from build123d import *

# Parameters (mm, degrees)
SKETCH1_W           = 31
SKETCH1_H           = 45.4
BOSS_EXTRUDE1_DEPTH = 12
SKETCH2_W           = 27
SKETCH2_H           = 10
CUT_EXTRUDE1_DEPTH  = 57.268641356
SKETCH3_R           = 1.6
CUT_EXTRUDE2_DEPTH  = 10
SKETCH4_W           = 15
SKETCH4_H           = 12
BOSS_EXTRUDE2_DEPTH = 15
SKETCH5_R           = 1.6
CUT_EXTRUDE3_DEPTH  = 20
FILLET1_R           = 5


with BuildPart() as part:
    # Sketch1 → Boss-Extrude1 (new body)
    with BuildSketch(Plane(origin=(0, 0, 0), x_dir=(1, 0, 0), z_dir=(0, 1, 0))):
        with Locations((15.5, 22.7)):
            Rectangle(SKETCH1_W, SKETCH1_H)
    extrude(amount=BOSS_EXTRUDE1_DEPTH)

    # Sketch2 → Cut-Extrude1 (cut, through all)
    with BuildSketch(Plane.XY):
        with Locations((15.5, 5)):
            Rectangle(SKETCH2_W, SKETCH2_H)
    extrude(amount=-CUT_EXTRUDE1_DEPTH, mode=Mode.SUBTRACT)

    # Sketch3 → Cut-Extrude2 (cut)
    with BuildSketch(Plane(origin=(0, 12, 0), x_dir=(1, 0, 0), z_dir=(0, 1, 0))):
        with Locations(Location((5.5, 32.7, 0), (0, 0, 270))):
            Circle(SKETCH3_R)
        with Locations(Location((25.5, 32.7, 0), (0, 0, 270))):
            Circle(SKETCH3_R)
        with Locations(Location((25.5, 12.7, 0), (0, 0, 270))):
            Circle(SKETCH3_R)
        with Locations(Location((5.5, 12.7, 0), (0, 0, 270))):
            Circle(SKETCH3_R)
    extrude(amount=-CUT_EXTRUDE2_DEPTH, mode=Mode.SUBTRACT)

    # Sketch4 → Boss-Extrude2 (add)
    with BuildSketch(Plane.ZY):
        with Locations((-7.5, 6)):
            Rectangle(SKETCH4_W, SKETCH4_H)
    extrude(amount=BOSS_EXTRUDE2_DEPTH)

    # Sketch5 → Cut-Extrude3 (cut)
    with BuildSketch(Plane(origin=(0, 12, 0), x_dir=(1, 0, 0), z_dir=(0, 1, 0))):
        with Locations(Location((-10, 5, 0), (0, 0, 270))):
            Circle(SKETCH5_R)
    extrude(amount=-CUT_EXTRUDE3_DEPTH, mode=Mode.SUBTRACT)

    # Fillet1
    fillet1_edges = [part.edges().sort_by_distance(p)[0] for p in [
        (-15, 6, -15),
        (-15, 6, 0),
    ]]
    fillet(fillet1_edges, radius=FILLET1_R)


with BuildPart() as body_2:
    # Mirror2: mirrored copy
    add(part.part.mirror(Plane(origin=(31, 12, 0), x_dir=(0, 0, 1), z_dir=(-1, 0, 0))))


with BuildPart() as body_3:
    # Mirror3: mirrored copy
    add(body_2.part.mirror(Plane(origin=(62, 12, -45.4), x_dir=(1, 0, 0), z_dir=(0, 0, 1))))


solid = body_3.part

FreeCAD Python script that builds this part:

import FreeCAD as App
import Part
import Sketcher
Q = App.Units.Quantity


def edges_at(feature, points):
    """Names of the edges that pass closest to the given points."""
    edges = feature.Shape.Edges
    near = lambda p: min(range(len(edges)), key=lambda i: edges[i].distToShape(Part.Vertex(*p))[0])
    return sorted({f"Edge{near(p) + 1}" for p in points})


def add_polygon(sketch, points):
    """Adds a closed chain of lines whose ends are joined by coincident constraints."""
    first, n = sketch.GeometryCount, len(points)
    for a, b in zip(points, points[1:] + points[:1]):
        sketch.addGeometry(Part.LineSegment(App.Vector(*a, 0), App.Vector(*b, 0)), False)
    for i in range(n):
        sketch.addConstraint(Sketcher.Constraint("Coincident", first + i, 2, first + (i + 1) % n, 1))

doc = App.newDocument("Part")
body = doc.addObject("PartDesign::Body", "Body")

# Sketch on XZ plane
sketch1 = body.newObject("Sketcher::SketchObject", "Sketch")
sketch1.AttachmentSupport = (doc.getObject("XZ_Plane"), [""])
sketch1.MapMode = "FlatFace"
add_polygon(sketch1, [(0, -45), (0, 0), (31, 0), (31, -45)])  # lines 0-3
sketch1.addConstraint(Sketcher.Constraint("Vertical", 0))
sketch1.addConstraint(Sketcher.Constraint("Horizontal", 1))
sketch1.addConstraint(Sketcher.Constraint("Vertical", 2))
sketch1.addConstraint(Sketcher.Constraint("Horizontal", 3))
sketch1.addConstraint(Sketcher.Constraint("Coincident", 0, 2, -1, 1))
sketch1.addConstraint(Sketcher.Constraint("DistanceX", 1, 1, 1, 2, Q("31 mm")))
sketch1.addConstraint(Sketcher.Constraint("DistanceY", 0, 1, 0, 2, Q("45.4 mm")))
pad1 = body.newObject("PartDesign::Pad", "Pad")
pad1.Profile = sketch1
pad1.Length = 12
pad1.Reversed = True

# Sketch on XY plane
sketch2 = body.newObject("Sketcher::SketchObject", "Sketch001")
sketch2.AttachmentSupport = (doc.getObject("XY_Plane"), [""])
sketch2.MapMode = "FlatFace"
add_polygon(sketch2, [(2, 10), (2, 0), (29, 0), (29, 10)])  # lines 0-3
sketch2.addConstraint(Sketcher.Constraint("Vertical", 0))
sketch2.addConstraint(Sketcher.Constraint("Horizontal", 1))
sketch2.addConstraint(Sketcher.Constraint("Vertical", 2))
sketch2.addConstraint(Sketcher.Constraint("Horizontal", 3))
sketch2.addConstraint(Sketcher.Constraint("PointOnObject", 0, 2, -1))
sketch2.addConstraint(Sketcher.Constraint("DistanceX", 1, 1, 1, 2, Q("27 mm")))
sketch2.addConstraint(Sketcher.Constraint("DistanceY", 0, 2, 0, 1, Q("10 mm")))
sketch2.addConstraint(Sketcher.Constraint("DistanceX", -1, 1, 0, 2, Q("2 mm")))
pocket1 = body.newObject("PartDesign::Pocket", "Pocket")
pocket1.Profile = sketch2
pocket1.Type = "ThroughAll"

# Sketch on XZ plane
sketch3 = body.newObject("Sketcher::SketchObject", "Sketch002")
sketch3.AttachmentSupport = (doc.getObject("XZ_Plane"), [""])
sketch3.MapMode = "FlatFace"
sketch3.AttachmentOffset = App.Placement(App.Vector(0, 0, -12), App.Rotation())
sketch3.addGeometry(Part.Circle(App.Vector(5.5, -32.7, 0), App.Vector(0, 0, 1), 1.6), False)
sketch3.addGeometry(Part.Circle(App.Vector(25.5, -32.7, 0), App.Vector(0, 0, 1), 1.6), False)
sketch3.addGeometry(Part.Circle(App.Vector(25.5, -12.7, 0), App.Vector(0, 0, 1), 1.6), False)
sketch3.addGeometry(Part.Circle(App.Vector(5.5, -12.7, 0), App.Vector(0, 0, 1), 1.6), False)
sketch3.addConstraint(Sketcher.Constraint("Equal", 0, 1))
sketch3.addConstraint(Sketcher.Constraint("Equal", 1, 2))
sketch3.addConstraint(Sketcher.Constraint("Equal", 2, 3))
sketch3.addConstraint(Sketcher.Constraint("Horizontal", 0, 3, 1, 3))
sketch3.addConstraint(Sketcher.Constraint("Horizontal", 2, 3, 3, 3))
sketch3.addConstraint(Sketcher.Constraint("Vertical", 1, 3, 2, 3))
sketch3.addConstraint(Sketcher.Constraint("Vertical", 0, 3, 3, 3))
sketch3.addConstraint(Sketcher.Constraint("Diameter", 0, Q("3.2 mm")))
sketch3.addConstraint(Sketcher.Constraint("DistanceX", 0, 3, 1, 3, Q("20 mm")))
sketch3.addConstraint(Sketcher.Constraint("DistanceY", 1, 3, 2, 3, Q("20 mm")))
sketch3.addConstraint(Sketcher.Constraint("DistanceX", -1, 1, 0, 3, Q("5.5 mm")))
sketch3.addConstraint(Sketcher.Constraint("DistanceY", 0, 3, -1, 1, Q("32.7 mm")))
pocket2 = body.newObject("PartDesign::Pocket", "Pocket001")
pocket2.Profile = sketch3
pocket2.Length = 10
pocket2.Reversed = True

# Sketch on YZ plane
sketch4 = body.newObject("Sketcher::SketchObject", "Sketch003")
sketch4.AttachmentSupport = (doc.getObject("YZ_Plane"), [""])
sketch4.MapMode = "FlatFace"
add_polygon(sketch4, [(12, -15), (0, -15), (0, 0), (12, 0)])  # lines 0-3
sketch4.addConstraint(Sketcher.Constraint("Horizontal", 0))
sketch4.addConstraint(Sketcher.Constraint("Vertical", 1))
sketch4.addConstraint(Sketcher.Constraint("Horizontal", 2))
sketch4.addConstraint(Sketcher.Constraint("Vertical", 3))
sketch4.addConstraint(Sketcher.Constraint("Coincident", 1, 2, -1, 1))
sketch4.addConstraint(Sketcher.Constraint("DistanceX", 0, 2, 0, 1, Q("12 mm")))
sketch4.addConstraint(Sketcher.Constraint("DistanceY", 1, 1, 1, 2, Q("15 mm")))
pad2 = body.newObject("PartDesign::Pad", "Pad001")
pad2.Profile = sketch4
pad2.Length = 15
pad2.Reversed = True

# Sketch on XZ plane
sketch5 = body.newObject("Sketcher::SketchObject", "Sketch004")
sketch5.AttachmentSupport = (doc.getObject("XZ_Plane"), [""])
sketch5.MapMode = "FlatFace"
sketch5.AttachmentOffset = App.Placement(App.Vector(0, 0, -12), App.Rotation())
sketch5.addGeometry(Part.Circle(App.Vector(-10, -5, 0), App.Vector(0, 0, 1), 1.6), False)
sketch5.addConstraint(Sketcher.Constraint("Diameter", 0, Q("3.2 mm")))
sketch5.addConstraint(Sketcher.Constraint("DistanceX", 0, 3, -1, 1, Q("10 mm")))
sketch5.addConstraint(Sketcher.Constraint("DistanceY", 0, 3, -1, 1, Q("5 mm")))
pocket3 = body.newObject("PartDesign::Pocket", "Pocket002")
pocket3.Profile = sketch5
pocket3.Length = 20
pocket3.Reversed = True
doc.recompute()

fillet = body.newObject("PartDesign::Fillet", "Fillet")
fillet.Base = (pocket3, edges_at(pocket3, [(-15, 6, -15), (-15, 6, 0)]))
fillet.Radius = 5
body2 = doc.addObject("PartDesign::Body", "Body001")
doc.recompute()

mirroring = doc.addObject("Part::Mirroring", "Mirroring")
mirroring.Source = body
mirroring.Base = App.Vector(31, 12, 0)
mirroring.Normal = App.Vector(-1, 0, 0)
body2.BaseFeature = mirroring
doc.recompute()
body3 = doc.addObject("PartDesign::Body", "Body002")
doc.recompute()

mirroring2 = doc.addObject("Part::Mirroring", "Mirroring001")
mirroring2.Source = body2
mirroring2.Base = App.Vector(62, 12, -45.4)
mirroring2.Normal = App.Vector(0, 0, 1)
body3.BaseFeature = mirroring2
doc.recompute()
body.Visibility = False
body2.Visibility = False
mirroring.Visibility = False
mirroring2.Visibility = False

doc.recompute()
